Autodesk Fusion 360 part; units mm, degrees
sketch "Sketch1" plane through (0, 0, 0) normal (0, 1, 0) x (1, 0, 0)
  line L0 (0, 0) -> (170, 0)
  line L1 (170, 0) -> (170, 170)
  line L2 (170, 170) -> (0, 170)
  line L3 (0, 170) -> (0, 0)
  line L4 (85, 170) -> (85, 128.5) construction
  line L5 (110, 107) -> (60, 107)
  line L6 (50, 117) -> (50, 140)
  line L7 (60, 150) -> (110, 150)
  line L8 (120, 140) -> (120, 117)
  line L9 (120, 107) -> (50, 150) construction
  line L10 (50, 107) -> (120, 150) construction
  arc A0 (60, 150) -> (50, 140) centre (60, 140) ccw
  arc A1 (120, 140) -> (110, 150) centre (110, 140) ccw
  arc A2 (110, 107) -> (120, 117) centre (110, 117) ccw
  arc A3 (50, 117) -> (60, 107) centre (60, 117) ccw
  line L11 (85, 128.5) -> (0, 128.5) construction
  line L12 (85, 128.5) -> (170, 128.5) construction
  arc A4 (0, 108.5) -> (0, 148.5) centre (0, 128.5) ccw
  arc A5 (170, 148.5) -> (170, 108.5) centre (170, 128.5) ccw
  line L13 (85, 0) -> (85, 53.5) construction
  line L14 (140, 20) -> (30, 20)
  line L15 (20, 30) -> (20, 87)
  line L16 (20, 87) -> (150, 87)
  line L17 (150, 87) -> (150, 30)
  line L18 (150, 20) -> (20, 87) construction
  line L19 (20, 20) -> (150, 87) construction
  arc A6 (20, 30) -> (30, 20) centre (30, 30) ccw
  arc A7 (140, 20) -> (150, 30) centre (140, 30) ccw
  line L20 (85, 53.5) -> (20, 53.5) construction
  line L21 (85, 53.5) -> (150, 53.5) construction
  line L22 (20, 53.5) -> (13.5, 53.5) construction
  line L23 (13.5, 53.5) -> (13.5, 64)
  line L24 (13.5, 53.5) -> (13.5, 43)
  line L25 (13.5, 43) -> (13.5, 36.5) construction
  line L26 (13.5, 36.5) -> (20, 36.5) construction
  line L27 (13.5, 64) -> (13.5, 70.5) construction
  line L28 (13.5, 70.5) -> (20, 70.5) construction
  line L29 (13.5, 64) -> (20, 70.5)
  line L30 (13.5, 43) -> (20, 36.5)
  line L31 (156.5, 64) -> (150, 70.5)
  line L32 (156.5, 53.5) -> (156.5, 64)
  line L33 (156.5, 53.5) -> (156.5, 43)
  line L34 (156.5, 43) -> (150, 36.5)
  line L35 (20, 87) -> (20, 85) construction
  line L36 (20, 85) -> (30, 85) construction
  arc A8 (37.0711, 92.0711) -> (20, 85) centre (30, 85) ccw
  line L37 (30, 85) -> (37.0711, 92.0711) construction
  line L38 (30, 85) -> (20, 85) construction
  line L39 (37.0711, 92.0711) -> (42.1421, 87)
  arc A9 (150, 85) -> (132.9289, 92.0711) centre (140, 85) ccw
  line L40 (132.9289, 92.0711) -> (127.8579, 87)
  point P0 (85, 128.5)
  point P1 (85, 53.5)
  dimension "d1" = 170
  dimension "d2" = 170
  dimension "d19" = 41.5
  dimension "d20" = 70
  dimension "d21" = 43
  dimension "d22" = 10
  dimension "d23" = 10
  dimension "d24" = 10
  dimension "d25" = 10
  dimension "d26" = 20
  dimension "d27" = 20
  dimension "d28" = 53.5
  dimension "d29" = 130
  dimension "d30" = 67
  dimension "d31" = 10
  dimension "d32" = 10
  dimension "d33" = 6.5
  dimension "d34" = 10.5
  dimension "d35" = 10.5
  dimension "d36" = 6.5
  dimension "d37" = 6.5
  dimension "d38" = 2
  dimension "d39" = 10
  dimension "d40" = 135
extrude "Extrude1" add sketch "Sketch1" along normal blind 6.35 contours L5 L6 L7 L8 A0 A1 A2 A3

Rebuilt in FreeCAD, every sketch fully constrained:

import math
import FreeCAD as App
import Part
import Sketcher
Q = App.Units.Quantity

doc = App.newDocument("Part")
body = doc.addObject("PartDesign::Body", "Body")

sketch1 = body.newObject("Sketcher::SketchObject", "Sketch")
sketch1.AttachmentSupport = (doc.getObject("XZ_Plane"), [""])
sketch1.MapMode = "FlatFace"
sketch1.addGeometry(Part.LineSegment(App.Vector(60, -107, 0), App.Vector(110, -107, 0)), False)
sketch1.addGeometry(Part.ArcOfCircle(Part.Circle(App.Vector(110, -117, 0), App.Vector(0, 0, 1), 10), math.radians(0), math.radians(90)), False)
sketch1.addGeometry(Part.LineSegment(App.Vector(120, -117, 0), App.Vector(120, -140, 0)), False)
sketch1.addGeometry(Part.ArcOfCircle(Part.Circle(App.Vector(110, -140, 0), App.Vector(0, 0, 1), 10), math.radians(-90), math.radians(0)), False)
sketch1.addGeometry(Part.LineSegment(App.Vector(110, -150, 0), App.Vector(60, -150, 0)), False)
sketch1.addGeometry(Part.ArcOfCircle(Part.Circle(App.Vector(60, -140, 0), App.Vector(0, 0, 1), 10), math.radians(180), math.radians(270)), False)
sketch1.addGeometry(Part.LineSegment(App.Vector(50, -140, 0), App.Vector(50, -117, 0)), False)
sketch1.addGeometry(Part.ArcOfCircle(Part.Circle(App.Vector(60, -117, 0), App.Vector(0, 0, 1), 10), math.radians(90), math.radians(180)), False)
sketch1.addConstraint(Sketcher.Constraint("Tangent", 0, 2, 1, 2))
sketch1.addConstraint(Sketcher.Constraint("Tangent", 1, 1, 2, 1))
sketch1.addConstraint(Sketcher.Constraint("Tangent", 2, 2, 3, 2))
sketch1.addConstraint(Sketcher.Constraint("Tangent", 3, 1, 4, 1))
sketch1.addConstraint(Sketcher.Constraint("Tangent", 4, 2, 5, 2))
sketch1.addConstraint(Sketcher.Constraint("Tangent", 5, 1, 6, 1))
sketch1.addConstraint(Sketcher.Constraint("Tangent", 6, 2, 7, 2))
sketch1.addConstraint(Sketcher.Constraint("Tangent", 7, 1, 0, 1))
sketch1.addConstraint(Sketcher.Constraint("Horizontal", 0))
sketch1.addConstraint(Sketcher.Constraint("Vertical", 2))
sketch1.addConstraint(Sketcher.Constraint("Horizontal", 4))
sketch1.addConstraint(Sketcher.Constraint("Vertical", 6))
sketch1.addConstraint(Sketcher.Constraint("Equal", 1, 3))
sketch1.addConstraint(Sketcher.Constraint("Equal", 3, 5))
sketch1.addConstraint(Sketcher.Constraint("Equal", 5, 7))
sketch1.addConstraint(Sketcher.Constraint("Radius", 1, Q("0.3937 in")))
sketch1.addConstraint(Sketcher.Constraint("DistanceY", 3, 1, 0, 2, Q("43 mm")))
sketch1.addConstraint(Sketcher.Constraint("DistanceX", 0, 1, 0, 2, Q("1.9685 in")))
sketch1.addConstraint(Sketcher.Constraint("DistanceX", -1, 1, 1, 3, Q("4.3307 in")))
sketch1.addConstraint(Sketcher.Constraint("DistanceY", 1, 3, -1, 1, Q("4.6063 in")))
pad1 = body.newObject("PartDesign::Pad", "Pad")
pad1.Profile = sketch1
pad1.Length = Q("0.25 in")
pad1.Reversed = True

doc.recompute()
